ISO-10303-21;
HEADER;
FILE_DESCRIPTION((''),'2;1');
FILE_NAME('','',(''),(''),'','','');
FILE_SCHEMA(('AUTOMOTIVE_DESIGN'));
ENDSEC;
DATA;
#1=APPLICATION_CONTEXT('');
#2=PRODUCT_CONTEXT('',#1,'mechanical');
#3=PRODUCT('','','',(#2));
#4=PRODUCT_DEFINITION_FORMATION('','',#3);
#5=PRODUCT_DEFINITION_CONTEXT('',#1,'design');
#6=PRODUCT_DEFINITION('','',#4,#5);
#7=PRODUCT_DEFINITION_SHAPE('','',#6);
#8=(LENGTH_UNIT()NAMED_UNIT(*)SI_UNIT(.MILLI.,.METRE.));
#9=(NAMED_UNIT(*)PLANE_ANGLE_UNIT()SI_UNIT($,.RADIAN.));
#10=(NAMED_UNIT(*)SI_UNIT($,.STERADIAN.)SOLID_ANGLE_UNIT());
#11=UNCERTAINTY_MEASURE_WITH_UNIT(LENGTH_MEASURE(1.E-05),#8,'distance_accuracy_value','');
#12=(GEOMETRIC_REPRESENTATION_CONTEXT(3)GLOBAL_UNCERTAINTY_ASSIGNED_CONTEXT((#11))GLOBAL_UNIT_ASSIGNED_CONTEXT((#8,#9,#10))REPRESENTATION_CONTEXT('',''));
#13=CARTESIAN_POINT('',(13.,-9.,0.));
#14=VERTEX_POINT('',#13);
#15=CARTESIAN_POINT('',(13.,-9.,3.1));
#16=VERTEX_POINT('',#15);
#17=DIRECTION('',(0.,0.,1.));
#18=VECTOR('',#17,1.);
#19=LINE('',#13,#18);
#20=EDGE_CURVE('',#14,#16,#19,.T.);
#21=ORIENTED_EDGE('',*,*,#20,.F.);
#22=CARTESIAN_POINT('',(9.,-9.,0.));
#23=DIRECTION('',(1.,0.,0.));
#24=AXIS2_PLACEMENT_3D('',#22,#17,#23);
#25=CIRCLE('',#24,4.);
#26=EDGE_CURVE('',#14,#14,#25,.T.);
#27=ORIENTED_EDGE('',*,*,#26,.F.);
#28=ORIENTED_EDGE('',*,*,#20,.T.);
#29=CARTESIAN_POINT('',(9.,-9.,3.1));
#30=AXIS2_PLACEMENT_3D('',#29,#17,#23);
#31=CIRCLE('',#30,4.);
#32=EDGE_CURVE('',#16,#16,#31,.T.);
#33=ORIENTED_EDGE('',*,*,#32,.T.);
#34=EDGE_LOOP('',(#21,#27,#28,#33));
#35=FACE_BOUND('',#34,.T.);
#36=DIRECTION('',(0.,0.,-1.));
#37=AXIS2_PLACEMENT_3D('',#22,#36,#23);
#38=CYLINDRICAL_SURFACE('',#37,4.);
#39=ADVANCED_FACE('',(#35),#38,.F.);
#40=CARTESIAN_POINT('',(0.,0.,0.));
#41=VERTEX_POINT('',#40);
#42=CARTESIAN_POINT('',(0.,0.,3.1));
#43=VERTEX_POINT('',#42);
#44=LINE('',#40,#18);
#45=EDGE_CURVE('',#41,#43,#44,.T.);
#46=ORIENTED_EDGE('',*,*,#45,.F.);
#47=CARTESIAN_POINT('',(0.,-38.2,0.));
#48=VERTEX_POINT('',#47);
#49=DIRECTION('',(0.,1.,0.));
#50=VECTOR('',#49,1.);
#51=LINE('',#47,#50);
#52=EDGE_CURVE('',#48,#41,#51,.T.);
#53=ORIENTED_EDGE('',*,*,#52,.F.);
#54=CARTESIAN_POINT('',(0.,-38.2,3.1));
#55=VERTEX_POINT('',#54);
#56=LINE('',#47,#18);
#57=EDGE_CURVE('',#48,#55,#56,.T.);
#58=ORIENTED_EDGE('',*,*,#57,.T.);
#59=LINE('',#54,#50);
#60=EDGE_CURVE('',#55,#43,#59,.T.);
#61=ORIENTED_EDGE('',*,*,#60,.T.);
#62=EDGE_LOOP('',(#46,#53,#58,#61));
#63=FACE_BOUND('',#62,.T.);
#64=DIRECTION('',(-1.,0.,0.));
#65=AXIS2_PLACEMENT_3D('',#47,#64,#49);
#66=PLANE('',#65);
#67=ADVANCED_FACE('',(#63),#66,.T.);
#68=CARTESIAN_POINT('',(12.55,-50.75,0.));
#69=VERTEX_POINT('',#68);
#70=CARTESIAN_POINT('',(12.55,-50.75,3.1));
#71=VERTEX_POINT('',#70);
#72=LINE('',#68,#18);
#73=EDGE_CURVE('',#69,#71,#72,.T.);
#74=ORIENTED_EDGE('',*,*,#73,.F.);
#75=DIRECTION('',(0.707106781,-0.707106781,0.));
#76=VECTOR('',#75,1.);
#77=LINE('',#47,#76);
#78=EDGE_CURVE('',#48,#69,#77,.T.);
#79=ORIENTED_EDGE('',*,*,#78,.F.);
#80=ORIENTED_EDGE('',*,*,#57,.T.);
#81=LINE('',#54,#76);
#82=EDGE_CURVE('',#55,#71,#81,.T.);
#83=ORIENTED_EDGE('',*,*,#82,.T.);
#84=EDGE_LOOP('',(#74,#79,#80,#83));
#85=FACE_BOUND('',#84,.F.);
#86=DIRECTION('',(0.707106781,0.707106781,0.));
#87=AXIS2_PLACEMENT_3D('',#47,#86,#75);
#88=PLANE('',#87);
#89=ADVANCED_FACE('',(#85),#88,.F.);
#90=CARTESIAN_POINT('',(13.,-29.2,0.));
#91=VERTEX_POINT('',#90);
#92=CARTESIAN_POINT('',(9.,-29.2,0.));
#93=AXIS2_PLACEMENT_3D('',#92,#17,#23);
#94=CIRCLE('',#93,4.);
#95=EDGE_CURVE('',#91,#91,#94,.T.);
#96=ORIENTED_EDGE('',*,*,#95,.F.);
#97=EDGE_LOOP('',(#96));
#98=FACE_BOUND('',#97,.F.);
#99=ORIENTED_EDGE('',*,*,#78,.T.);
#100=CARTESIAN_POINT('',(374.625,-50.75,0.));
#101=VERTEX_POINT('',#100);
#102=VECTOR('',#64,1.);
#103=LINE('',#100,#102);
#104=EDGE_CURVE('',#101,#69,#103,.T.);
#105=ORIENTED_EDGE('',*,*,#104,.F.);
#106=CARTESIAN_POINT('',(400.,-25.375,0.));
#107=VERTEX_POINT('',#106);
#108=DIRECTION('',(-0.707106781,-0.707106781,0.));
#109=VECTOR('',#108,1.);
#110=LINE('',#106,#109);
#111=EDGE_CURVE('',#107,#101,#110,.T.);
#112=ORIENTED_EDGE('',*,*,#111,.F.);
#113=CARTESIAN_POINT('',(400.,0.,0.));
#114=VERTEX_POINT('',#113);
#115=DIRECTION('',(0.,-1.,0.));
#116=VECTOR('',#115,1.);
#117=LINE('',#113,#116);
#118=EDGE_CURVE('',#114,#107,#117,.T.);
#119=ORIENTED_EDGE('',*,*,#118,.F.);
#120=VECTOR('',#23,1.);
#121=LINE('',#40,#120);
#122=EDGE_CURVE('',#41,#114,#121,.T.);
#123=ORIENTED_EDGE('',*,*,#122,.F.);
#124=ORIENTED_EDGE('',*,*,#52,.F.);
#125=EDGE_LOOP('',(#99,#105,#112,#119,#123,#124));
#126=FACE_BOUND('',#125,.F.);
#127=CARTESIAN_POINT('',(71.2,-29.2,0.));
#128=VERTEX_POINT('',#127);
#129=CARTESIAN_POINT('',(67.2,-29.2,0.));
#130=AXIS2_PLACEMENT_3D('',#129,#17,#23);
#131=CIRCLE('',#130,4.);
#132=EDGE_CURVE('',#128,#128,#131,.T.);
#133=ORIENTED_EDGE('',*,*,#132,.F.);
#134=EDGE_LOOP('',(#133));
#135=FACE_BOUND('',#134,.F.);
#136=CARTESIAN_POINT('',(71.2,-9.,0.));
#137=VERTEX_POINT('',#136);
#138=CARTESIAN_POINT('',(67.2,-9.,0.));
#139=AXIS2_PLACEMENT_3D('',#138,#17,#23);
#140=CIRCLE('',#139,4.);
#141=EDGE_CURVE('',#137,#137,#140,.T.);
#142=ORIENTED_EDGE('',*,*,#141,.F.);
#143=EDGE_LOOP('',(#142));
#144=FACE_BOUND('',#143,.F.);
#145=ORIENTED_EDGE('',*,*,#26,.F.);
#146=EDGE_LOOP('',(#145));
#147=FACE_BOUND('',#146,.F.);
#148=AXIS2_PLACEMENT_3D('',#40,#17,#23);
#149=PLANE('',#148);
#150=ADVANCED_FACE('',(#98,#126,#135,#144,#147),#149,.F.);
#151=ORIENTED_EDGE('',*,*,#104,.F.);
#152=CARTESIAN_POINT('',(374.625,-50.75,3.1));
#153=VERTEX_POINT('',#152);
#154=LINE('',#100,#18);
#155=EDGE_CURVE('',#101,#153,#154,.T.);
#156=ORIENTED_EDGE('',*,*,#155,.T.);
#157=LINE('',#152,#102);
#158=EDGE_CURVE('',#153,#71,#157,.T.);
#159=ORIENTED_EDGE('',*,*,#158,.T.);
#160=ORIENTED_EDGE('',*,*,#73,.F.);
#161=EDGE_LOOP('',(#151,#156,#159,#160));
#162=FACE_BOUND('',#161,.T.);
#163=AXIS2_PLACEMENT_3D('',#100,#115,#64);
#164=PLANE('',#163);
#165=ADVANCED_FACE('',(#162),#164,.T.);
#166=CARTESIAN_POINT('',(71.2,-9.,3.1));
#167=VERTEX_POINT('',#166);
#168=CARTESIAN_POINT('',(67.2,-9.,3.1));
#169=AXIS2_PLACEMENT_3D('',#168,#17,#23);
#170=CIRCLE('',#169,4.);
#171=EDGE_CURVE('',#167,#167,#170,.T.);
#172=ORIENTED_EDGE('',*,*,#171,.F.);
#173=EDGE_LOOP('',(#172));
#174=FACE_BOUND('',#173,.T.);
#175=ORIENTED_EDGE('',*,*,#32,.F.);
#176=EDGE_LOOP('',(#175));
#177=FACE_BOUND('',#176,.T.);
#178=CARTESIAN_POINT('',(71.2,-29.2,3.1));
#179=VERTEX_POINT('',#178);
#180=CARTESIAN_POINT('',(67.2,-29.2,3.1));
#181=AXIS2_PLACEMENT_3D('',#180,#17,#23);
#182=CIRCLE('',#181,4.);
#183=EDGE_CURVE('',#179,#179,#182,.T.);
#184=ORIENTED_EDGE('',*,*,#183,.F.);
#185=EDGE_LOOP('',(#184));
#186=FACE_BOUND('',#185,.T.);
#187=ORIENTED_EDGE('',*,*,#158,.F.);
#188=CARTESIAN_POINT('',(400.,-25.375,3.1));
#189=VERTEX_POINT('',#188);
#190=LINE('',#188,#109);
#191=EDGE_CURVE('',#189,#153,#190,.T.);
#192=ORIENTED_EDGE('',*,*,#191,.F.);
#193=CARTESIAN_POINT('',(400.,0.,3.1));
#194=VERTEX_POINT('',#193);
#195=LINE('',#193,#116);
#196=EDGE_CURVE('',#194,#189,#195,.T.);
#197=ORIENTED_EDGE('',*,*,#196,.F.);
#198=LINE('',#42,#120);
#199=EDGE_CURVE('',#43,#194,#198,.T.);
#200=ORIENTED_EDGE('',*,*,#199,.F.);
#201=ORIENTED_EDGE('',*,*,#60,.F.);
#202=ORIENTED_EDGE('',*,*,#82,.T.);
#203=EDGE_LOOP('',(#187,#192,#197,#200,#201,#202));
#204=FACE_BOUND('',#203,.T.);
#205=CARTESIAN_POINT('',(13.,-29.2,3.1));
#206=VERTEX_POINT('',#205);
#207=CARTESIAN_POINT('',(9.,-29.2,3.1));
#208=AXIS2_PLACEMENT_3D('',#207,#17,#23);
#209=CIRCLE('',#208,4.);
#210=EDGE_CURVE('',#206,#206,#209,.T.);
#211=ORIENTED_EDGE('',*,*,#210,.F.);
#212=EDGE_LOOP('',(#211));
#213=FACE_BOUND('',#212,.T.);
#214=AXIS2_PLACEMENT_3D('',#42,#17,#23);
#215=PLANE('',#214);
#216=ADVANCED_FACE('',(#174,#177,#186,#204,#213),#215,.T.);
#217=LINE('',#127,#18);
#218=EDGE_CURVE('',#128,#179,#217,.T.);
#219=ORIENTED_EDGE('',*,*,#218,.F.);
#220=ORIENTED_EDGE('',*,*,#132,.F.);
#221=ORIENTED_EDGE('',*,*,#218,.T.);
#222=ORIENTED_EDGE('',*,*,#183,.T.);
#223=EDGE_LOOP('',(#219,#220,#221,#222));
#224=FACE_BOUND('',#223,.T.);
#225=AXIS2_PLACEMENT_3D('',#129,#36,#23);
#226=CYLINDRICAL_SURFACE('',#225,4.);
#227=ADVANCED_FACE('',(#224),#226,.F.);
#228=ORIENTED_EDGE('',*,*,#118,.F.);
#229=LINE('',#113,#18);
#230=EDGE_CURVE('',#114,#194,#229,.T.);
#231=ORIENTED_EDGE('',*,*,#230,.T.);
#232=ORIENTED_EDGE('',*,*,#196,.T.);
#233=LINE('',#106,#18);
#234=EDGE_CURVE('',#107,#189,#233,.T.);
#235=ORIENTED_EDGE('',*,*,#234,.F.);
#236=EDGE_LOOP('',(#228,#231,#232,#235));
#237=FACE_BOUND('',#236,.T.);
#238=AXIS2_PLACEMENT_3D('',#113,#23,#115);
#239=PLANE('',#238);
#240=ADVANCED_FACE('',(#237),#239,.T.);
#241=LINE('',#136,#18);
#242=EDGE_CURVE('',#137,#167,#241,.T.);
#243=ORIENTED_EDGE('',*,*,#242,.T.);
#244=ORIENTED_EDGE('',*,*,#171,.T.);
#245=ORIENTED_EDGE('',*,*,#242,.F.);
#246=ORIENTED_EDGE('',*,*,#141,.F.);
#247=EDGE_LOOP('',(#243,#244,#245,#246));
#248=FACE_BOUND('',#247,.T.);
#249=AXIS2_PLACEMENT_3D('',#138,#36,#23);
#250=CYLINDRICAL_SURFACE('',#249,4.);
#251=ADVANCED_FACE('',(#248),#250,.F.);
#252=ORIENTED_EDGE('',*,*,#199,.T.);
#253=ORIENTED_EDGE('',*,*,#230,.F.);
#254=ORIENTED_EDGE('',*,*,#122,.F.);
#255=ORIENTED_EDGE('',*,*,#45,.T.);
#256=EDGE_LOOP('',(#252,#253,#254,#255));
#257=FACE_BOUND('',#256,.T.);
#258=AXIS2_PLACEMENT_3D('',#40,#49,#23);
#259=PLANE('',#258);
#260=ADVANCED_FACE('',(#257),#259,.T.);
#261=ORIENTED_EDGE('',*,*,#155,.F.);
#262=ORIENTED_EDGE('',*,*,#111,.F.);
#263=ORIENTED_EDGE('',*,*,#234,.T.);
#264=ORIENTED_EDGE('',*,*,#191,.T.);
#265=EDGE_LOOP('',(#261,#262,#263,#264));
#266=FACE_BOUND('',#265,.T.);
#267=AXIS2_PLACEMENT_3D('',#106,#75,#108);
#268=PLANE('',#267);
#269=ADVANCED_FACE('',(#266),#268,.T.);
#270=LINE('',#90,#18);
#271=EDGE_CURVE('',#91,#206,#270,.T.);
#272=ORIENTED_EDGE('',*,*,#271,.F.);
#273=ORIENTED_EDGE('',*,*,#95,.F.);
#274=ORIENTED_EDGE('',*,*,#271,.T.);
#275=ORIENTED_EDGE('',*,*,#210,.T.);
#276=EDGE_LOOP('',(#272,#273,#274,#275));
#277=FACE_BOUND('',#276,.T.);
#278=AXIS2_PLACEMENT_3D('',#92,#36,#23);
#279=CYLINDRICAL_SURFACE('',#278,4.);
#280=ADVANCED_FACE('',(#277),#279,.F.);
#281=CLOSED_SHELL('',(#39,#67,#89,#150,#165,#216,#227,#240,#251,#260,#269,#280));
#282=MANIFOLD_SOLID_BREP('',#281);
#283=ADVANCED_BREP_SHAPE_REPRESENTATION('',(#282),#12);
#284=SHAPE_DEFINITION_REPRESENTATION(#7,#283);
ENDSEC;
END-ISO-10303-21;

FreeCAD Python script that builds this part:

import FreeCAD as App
import Part
import Sketcher


def add_polygon(sketch, points):
    """Adds a closed chain of lines whose ends are joined by coincident constraints."""
    first, n = sketch.GeometryCount, len(points)
    for a, b in zip(points, points[1:] + points[:1]):
        sketch.addGeometry(Part.LineSegment(App.Vector(*a, 0), App.Vector(*b, 0)), False)
    for i in range(n):
        sketch.addConstraint(Sketcher.Constraint("Coincident", first + i, 2, first + (i + 1) % n, 1))

doc = App.newDocument("Part")
params = doc.addObject("Spreadsheet::Sheet", "Params")
for row, (alias, value) in enumerate([
    ("sketch1_diameter", "8 mm"),
    ("sketch1_width", "400 mm"),
    ("pad1_length", "3.1 mm"),
], start=1):
    params.set(f"A{row}", alias)
    params.set(f"B{row}", "=" + value)
    params.setAlias(f"B{row}", alias)

body = doc.addObject("PartDesign::Body", "Body")

# Sketch on XY plane
sketch1 = body.newObject("Sketcher::SketchObject", "Sketch")
sketch1.AttachmentSupport = (doc.getObject("XY_Plane"), [""])
sketch1.MapMode = "FlatFace"
add_polygon(sketch1, [(400, 0), (0, 0), (0, -38.2), (12.55, -50.75), (374.625, -50.75), (400, -25.375)])  # lines 0-5
sketch1.addGeometry(Part.Circle(App.Vector(9, -29.2, 0), App.Vector(0, 0, 1), 4), False)  # 6
sketch1.addGeometry(Part.Circle(App.Vector(67.2, -29.2, 0), App.Vector(0, 0, 1), 4), False)  # 7
sketch1.addGeometry(Part.Circle(App.Vector(9, -9, 0), App.Vector(0, 0, 1), 4), False)  # 8
sketch1.addGeometry(Part.Circle(App.Vector(67.2, -9, 0), App.Vector(0, 0, 1), 4), False)  # 9
sketch1.addConstraint([
    Sketcher.Constraint("Horizontal", 0),
    Sketcher.Constraint("Vertical", 1),
    Sketcher.Constraint("Horizontal", 3),
    Sketcher.Constraint("Vertical", 5),
    Sketcher.Constraint("Coincident", 0, 2, -1, 1),
    Sketcher.Constraint("Equal", 6, 7),
    Sketcher.Constraint("Equal", 7, 8),
    Sketcher.Constraint("Equal", 8, 9),
    Sketcher.Constraint("Perpendicular", 2, 4),
    Sketcher.Constraint("Horizontal", 6, 3, 7, 3),
    Sketcher.Constraint("Horizontal", 8, 3, 9, 3),
    Sketcher.Constraint("Vertical", 6, 3, 8, 3),
    Sketcher.Constraint("Vertical", 7, 3, 9, 3),
    Sketcher.Constraint("Diameter", 6, 8.0),
    Sketcher.Constraint("DistanceX", 0, 2, 0, 1, 400.0),
    Sketcher.Constraint("DistanceX", -1, 1, 6, 3, 9.0),
    Sketcher.Constraint("DistanceY", 8, 3, -1, 1, 9.0),
    Sketcher.Constraint("DistanceY", 1, 2, 6, 3, 9.0),
    Sketcher.Constraint("DistanceX", 6, 3, 7, 3, 58.2),
    Sketcher.Constraint("DistanceY", 6, 3, 8, 3, 20.2),
    Sketcher.Constraint("DistanceY", 5, 1, 5, 2, 25.375),
    Sketcher.Constraint("DistanceX", -1, 1, 2, 2, 12.55),
    Sketcher.Constraint("DistanceY", 2, 2, -1, 1, 50.75),
])
sketch1.setExpression("Constraints[19]", "Params.sketch1_diameter")
sketch1.setExpression("Constraints[20]", "Params.sketch1_width")
pad1 = body.newObject("PartDesign::Pad", "Pad")
pad1.Profile = sketch1
pad1.setExpression("Length", "Params.pad1_length")

doc.recompute()
